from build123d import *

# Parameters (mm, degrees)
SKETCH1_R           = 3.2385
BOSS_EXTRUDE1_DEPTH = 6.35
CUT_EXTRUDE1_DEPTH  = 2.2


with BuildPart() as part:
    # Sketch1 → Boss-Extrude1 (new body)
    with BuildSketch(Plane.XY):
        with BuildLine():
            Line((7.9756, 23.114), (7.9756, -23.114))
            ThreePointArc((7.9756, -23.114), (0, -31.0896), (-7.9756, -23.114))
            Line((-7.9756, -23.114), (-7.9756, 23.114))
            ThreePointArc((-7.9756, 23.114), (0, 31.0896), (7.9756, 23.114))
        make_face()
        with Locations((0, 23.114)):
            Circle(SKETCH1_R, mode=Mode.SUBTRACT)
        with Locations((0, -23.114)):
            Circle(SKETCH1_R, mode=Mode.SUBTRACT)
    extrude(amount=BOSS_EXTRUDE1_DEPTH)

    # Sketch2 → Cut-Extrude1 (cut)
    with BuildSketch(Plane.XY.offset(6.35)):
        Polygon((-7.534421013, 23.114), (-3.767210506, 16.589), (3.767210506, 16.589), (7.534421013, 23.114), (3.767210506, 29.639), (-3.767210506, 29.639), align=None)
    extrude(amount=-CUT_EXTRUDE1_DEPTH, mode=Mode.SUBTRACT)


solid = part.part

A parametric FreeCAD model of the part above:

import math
import FreeCAD as App
import Part
import Sketcher
Q = App.Units.Quantity

doc = App.newDocument("Part")
body = doc.addObject("PartDesign::Body", "Body")

# Sketch on XY plane
sketch1 = body.newObject("Sketcher::SketchObject", "Sketch")
sketch1.AttachmentSupport = (doc.getObject("XY_Plane"), [""])
sketch1.MapMode = "FlatFace"
sketch1.addGeometry([
    Part.LineSegment(App.Vector(7.9756, -23.114, 0), App.Vector(7.9756, 23.114, 0)),  # 0
    Part.ArcOfCircle(Part.Circle(App.Vector(0, 23.114, 0), App.Vector(0, 0, 1), 7.9756), math.radians(0), math.radians(180)),  # 1
    Part.LineSegment(App.Vector(-7.9756, 23.114, 0), App.Vector(-7.9756, -23.114, 0)),  # 2
    Part.ArcOfCircle(Part.Circle(App.Vector(0, -23.114, 0), App.Vector(0, 0, 1), 7.9756), math.radians(180), math.radians(360)),  # 3
    Part.Circle(App.Vector(0, -23.114, 0), App.Vector(0, 0, 1), 3.2385),  # 4
    Part.Circle(App.Vector(0, 23.114, 0), App.Vector(0, 0, 1), 3.2385),  # 5
], False)
sketch1.addConstraint([
    Sketcher.Constraint("Tangent", 0, 2, 1, 1),
    Sketcher.Constraint("Tangent", 1, 2, 2, 1),
    Sketcher.Constraint("Tangent", 2, 2, 3, 1),
    Sketcher.Constraint("Tangent", 3, 2, 0, 1),
    Sketcher.Constraint("Vertical", 0),
    Sketcher.Constraint("Vertical", 2),
    Sketcher.Constraint("Coincident", 4, 3, 3, 3),
    Sketcher.Constraint("Coincident", 5, 3, 1, 3),
    Sketcher.Constraint("Equal", 4, 5),
    Sketcher.Constraint("Symmetric", 1, 3, 3, 3, -1, 1),
    Sketcher.Constraint("Diameter", 4, Q("0.255 in")),
    Sketcher.Constraint("Radius", 1, Q("0.314 in")),
    Sketcher.Constraint("DistanceY", 0, 1, 0, 2, Q("1.82 in")),
])
pad1 = body.newObject("PartDesign::Pad", "Pad")
pad1.Profile = sketch1
pad1.Length = Q("0.25 in")

# Sketch on XY plane
sketch2 = body.newObject("Sketcher::SketchObject", "Sketch001")
sketch2.AttachmentSupport = (doc.getObject("XY_Plane"), [""])
sketch2.MapMode = "FlatFace"
sketch2.AttachmentOffset = App.Placement(App.Vector(0, 0, 0.25 * 25.4), App.Rotation())
sketch2.addGeometry([
    Part.LineSegment(App.Vector(-7.534421, 23.114, 0), App.Vector(-3.767211, 16.589, 0)),  # 0
    Part.LineSegment(App.Vector(-3.767211, 16.589, 0), App.Vector(3.767211, 16.589, 0)),  # 1
    Part.LineSegment(App.Vector(3.767211, 16.589, 0), App.Vector(7.534421, 23.114, 0)),  # 2
    Part.LineSegment(App.Vector(7.534421, 23.114, 0), App.Vector(3.767211, 29.639, 0)),  # 3
    Part.LineSegment(App.Vector(3.767211, 29.639, 0), App.Vector(-3.767211, 29.639, 0)),  # 4
    Part.LineSegment(App.Vector(-3.767211, 29.639, 0), App.Vector(-7.534421, 23.114, 0)),  # 5
], False)
sketch2.addConstraint([
    Sketcher.Constraint("Coincident", 0, 2, 1, 1),
    Sketcher.Constraint("Coincident", 1, 2, 2, 1),
    Sketcher.Constraint("Coincident", 2, 2, 3, 1),
    Sketcher.Constraint("Coincident", 3, 2, 4, 1),
    Sketcher.Constraint("Coincident", 4, 2, 5, 1),
    Sketcher.Constraint("Coincident", 5, 2, 0, 1),
    Sketcher.Constraint("Horizontal", 1),
    Sketcher.Constraint("Horizontal", 4),
    Sketcher.Constraint("Symmetric", 2, 2, 5, 2, -2),
    Sketcher.Constraint("Parallel", 0, 3),
    Sketcher.Constraint("Parallel", 2, 5),
    Sketcher.Constraint("Vertical", 1, 2, 3, 2),
    Sketcher.Constraint("Vertical", 0, 2, 4, 2),
    Sketcher.Constraint("Angle", 0, Q("-60 deg")),
    Sketcher.Constraint("DistanceY", -1, 1, 2, 2, Q("0.91 in")),
    Sketcher.Constraint("DistanceX", 1, 1, 1, 2, 7.534421),
    Sketcher.Constraint("DistanceY", -1, 1, 0, 2, 16.589),
])
pocket1 = body.newObject("PartDesign::Pocket", "Pocket")
pocket1.Profile = sketch2
pocket1.Length = 2.2

doc.recompute()
